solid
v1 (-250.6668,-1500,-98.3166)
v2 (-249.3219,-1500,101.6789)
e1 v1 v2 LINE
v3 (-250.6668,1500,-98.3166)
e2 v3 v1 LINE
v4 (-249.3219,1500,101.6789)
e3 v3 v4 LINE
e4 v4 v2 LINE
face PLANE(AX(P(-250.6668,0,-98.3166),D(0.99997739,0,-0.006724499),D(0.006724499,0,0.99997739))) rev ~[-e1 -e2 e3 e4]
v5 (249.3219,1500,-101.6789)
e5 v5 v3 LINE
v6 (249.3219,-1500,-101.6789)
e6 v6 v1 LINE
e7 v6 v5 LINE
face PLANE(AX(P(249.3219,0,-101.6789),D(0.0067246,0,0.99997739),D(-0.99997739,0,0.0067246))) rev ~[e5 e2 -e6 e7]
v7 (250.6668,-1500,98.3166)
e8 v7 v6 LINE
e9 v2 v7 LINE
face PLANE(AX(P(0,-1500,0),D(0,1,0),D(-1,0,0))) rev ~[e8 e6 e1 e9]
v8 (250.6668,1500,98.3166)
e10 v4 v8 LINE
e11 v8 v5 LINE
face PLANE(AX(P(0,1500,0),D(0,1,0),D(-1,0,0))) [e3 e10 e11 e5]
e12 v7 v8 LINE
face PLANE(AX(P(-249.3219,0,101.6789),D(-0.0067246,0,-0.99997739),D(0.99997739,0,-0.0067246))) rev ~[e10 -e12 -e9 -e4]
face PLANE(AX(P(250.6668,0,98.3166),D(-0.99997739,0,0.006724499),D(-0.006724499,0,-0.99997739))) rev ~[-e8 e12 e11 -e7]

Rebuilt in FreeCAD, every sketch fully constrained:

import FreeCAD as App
import Part
import Sketcher


def add_polygon(sketch, points):
    """Adds a closed chain of lines whose ends are joined by coincident constraints."""
    first, n = sketch.GeometryCount, len(points)
    for a, b in zip(points, points[1:] + points[:1]):
        sketch.addGeometry(Part.LineSegment(App.Vector(*a, 0), App.Vector(*b, 0)), False)
    for i in range(n):
        sketch.addConstraint(Sketcher.Constraint("Coincident", first + i, 2, first + (i + 1) % n, 1))

doc = App.newDocument("Part")
body = doc.addObject("PartDesign::Body", "Body")

# Sketch on XZ plane
sketch1 = body.newObject("Sketcher::SketchObject", "Sketch")
sketch1.AttachmentSupport = (doc.getObject("XZ_Plane"), [""])
sketch1.MapMode = "FlatFace"
add_polygon(sketch1, [(-249, 102), (251, 98), (249, -102), (-251, -98)])  # lines 0-3
sketch1.addConstraint([
    Sketcher.Constraint("Symmetric", 0, 2, 2, 2, -1, 1),
    Sketcher.Constraint("Symmetric", 1, 2, 3, 2, -1, 1),
    Sketcher.Constraint("Perpendicular", 0, 1),
    Sketcher.Constraint("Distance", 0, 500.0),
    Sketcher.Constraint("Distance", 1, 200.0),
    Sketcher.Constraint("DistanceX", -1, 1, 1, 2, 249.322),
])
pad1 = body.newObject("PartDesign::Pad", "Pad")
pad1.Profile = sketch1
pad1.Length = 3000
pad1.Midplane = True

doc.recompute()
